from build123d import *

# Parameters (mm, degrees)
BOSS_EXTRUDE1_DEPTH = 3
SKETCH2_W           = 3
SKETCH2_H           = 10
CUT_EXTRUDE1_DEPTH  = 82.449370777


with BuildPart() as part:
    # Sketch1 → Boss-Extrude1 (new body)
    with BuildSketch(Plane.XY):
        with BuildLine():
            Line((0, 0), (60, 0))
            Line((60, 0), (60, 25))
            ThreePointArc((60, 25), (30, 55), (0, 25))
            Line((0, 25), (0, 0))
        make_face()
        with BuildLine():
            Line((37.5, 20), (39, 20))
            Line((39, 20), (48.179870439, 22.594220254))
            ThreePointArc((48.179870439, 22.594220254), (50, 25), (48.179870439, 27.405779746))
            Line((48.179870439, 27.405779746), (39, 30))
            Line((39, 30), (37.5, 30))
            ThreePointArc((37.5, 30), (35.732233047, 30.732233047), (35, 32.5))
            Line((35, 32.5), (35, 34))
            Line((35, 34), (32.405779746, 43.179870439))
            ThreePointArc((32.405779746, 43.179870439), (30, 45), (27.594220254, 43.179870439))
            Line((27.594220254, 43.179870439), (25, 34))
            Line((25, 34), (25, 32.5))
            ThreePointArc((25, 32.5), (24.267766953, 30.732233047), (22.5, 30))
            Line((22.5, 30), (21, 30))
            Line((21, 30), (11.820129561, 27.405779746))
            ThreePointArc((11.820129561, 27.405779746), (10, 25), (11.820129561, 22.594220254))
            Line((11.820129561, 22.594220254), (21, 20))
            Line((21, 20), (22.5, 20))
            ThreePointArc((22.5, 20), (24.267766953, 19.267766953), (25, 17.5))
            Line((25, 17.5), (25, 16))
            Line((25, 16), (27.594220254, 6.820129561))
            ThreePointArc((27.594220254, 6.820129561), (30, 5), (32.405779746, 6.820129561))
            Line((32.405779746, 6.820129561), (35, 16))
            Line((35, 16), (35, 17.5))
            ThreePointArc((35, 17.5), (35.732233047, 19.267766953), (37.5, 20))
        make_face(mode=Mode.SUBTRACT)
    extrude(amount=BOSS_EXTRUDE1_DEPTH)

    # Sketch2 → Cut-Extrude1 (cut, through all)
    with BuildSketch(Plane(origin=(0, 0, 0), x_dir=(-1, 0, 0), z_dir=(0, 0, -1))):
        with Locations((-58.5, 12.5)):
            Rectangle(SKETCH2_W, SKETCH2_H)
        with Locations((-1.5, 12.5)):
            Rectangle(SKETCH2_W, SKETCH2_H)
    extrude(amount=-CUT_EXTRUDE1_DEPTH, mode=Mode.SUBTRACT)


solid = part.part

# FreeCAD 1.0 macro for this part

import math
import FreeCAD as App
import Part
import Sketcher
from FreeCAD import Vector

doc = App.newDocument("Part")
params = doc.addObject("Spreadsheet::Sheet", "Params")
for row, (alias, value) in enumerate([
    ("sketch1_radius", "30 mm"),
    ("sketch1_radius2", "2.5 mm"),
    ("sketch1_height", "25 mm"),
    ("sketch1_width", "1.5 mm"),
    ("pad1_length", "3 mm"),
    ("sketch2_width", "3 mm"),
    ("sketch2_height", "10 mm"),
], start=1):
    params.set(f"A{row}", alias)
    params.set(f"B{row}", "=" + value)
    params.setAlias(f"B{row}", alias)

body = doc.addObject("PartDesign::Body", "Body")

sketch1 = doc.addObject("Sketcher::SketchObject", "Sketch")
body.addObject(sketch1)
sketch1.AttachmentSupport = (doc.XY_Plane, [""])
sketch1.MapMode = "FlatFace"
sketch1.addGeometry(Part.LineSegment(Vector(0, 0, 0), Vector(60, 0, 0)), False)
sketch1.addGeometry(Part.LineSegment(Vector(60, 0, 0), Vector(60, 25, 0)), False)
sketch1.addGeometry(Part.ArcOfCircle(Part.Circle(Vector(30, 25, 0), Vector(0, 0, 1), 30), math.radians(0), math.radians(180)), False)
sketch1.addGeometry(Part.LineSegment(Vector(0, 25, 0), Vector(0, 0, 0)), False)
sketch1.addGeometry(Part.LineSegment(Vector(39, 20, 0), Vector(37.5, 20, 0)), False)
sketch1.addGeometry(Part.ArcOfCircle(Part.Circle(Vector(37.5, 17.5, 0), Vector(0, 0, 1), 2.5), math.radians(90), math.radians(180)), False)
sketch1.addGeometry(Part.LineSegment(Vector(35, 17.5, 0), Vector(35, 16, 0)), False)
sketch1.addGeometry(Part.LineSegment(Vector(35, 16, 0), Vector(32.4, 6.8, 0)), False)
sketch1.addGeometry(Part.ArcOfCircle(Part.Circle(Vector(30, 7.5, 0), Vector(0, 0, 1), 2.5), math.radians(-164), math.radians(-16)), False)
sketch1.addGeometry(Part.LineSegment(Vector(27.6, 6.8, 0), Vector(25, 16, 0)), False)
sketch1.addGeometry(Part.LineSegment(Vector(25, 16, 0), Vector(25, 17.5, 0)), False)
sketch1.addGeometry(Part.ArcOfCircle(Part.Circle(Vector(22.5, 17.5, 0), Vector(0, 0, 1), 2.5), math.radians(0), math.radians(90)), False)
sketch1.addGeometry(Part.LineSegment(Vector(22.5, 20, 0), Vector(21, 20, 0)), False)
sketch1.addGeometry(Part.LineSegment(Vector(21, 20, 0), Vector(11.8, 22.6, 0)), False)
sketch1.addGeometry(Part.ArcOfCircle(Part.Circle(Vector(12.5, 25, 0), Vector(0, 0, 1), 2.5), math.radians(106), math.radians(254)), False)
sketch1.addGeometry(Part.LineSegment(Vector(11.8, 27.4, 0), Vector(21, 30, 0)), False)
sketch1.addGeometry(Part.LineSegment(Vector(21, 30, 0), Vector(22.5, 30, 0)), False)
sketch1.addGeometry(Part.ArcOfCircle(Part.Circle(Vector(22.5, 32.5, 0), Vector(0, 0, 1), 2.5), math.radians(-90), math.radians(0)), False)
sketch1.addGeometry(Part.LineSegment(Vector(25, 32.5, 0), Vector(25, 34, 0)), False)
sketch1.addGeometry(Part.LineSegment(Vector(25, 34, 0), Vector(27.6, 43.2, 0)), False)
sketch1.addGeometry(Part.ArcOfCircle(Part.Circle(Vector(30, 42.5, 0), Vector(0, 0, 1), 2.5), math.radians(16), math.radians(164)), False)
sketch1.addGeometry(Part.LineSegment(Vector(32.4, 43.2, 0), Vector(35, 34, 0)), False)
sketch1.addGeometry(Part.LineSegment(Vector(35, 34, 0), Vector(35, 32.5, 0)), False)
sketch1.addGeometry(Part.ArcOfCircle(Part.Circle(Vector(37.5, 32.5, 0), Vector(0, 0, 1), 2.5), math.radians(180), math.radians(270)), False)
sketch1.addGeometry(Part.LineSegment(Vector(37.5, 30, 0), Vector(39, 30, 0)), False)
sketch1.addGeometry(Part.LineSegment(Vector(39, 30, 0), Vector(48.2, 27.4, 0)), False)
sketch1.addGeometry(Part.ArcOfCircle(Part.Circle(Vector(47.5, 25, 0), Vector(0, 0, 1), 2.5), math.radians(-74), math.radians(74)), False)
sketch1.addGeometry(Part.LineSegment(Vector(48.2, 22.6, 0), Vector(39, 20, 0)), False)
sketch1.addConstraint(Sketcher.Constraint("Coincident", 0, 2, 1, 1))
sketch1.addConstraint(Sketcher.Constraint("Tangent", 1, 2, 2, 1))
sketch1.addConstraint(Sketcher.Constraint("Tangent", 2, 2, 3, 1))
sketch1.addConstraint(Sketcher.Constraint("Coincident", 3, 2, 0, 1))
sketch1.addConstraint(Sketcher.Constraint("Tangent", 4, 2, 5, 1))
sketch1.addConstraint(Sketcher.Constraint("Tangent", 5, 2, 6, 1))
sketch1.addConstraint(Sketcher.Constraint("Coincident", 6, 2, 7, 1))
sketch1.addConstraint(Sketcher.Constraint("Tangent", 7, 2, 8, 2))
sketch1.addConstraint(Sketcher.Constraint("Tangent", 8, 1, 9, 1))
sketch1.addConstraint(Sketcher.Constraint("Coincident", 9, 2, 10, 1))
sketch1.addConstraint(Sketcher.Constraint("Tangent", 10, 2, 11, 1))
sketch1.addConstraint(Sketcher.Constraint("Tangent", 11, 2, 12, 1))
sketch1.addConstraint(Sketcher.Constraint("Coincident", 12, 2, 13, 1))
sketch1.addConstraint(Sketcher.Constraint("Tangent", 13, 2, 14, 2))
sketch1.addConstraint(Sketcher.Constraint("Tangent", 14, 1, 15, 1))
sketch1.addConstraint(Sketcher.Constraint("Coincident", 15, 2, 16, 1))
sketch1.addConstraint(Sketcher.Constraint("Tangent", 16, 2, 17, 1))
sketch1.addConstraint(Sketcher.Constraint("Tangent", 17, 2, 18, 1))
sketch1.addConstraint(Sketcher.Constraint("Coincident", 18, 2, 19, 1))
sketch1.addConstraint(Sketcher.Constraint("Tangent", 19, 2, 20, 2))
sketch1.addConstraint(Sketcher.Constraint("Tangent", 20, 1, 21, 1))
sketch1.addConstraint(Sketcher.Constraint("Coincident", 21, 2, 22, 1))
sketch1.addConstraint(Sketcher.Constraint("Tangent", 22, 2, 23, 1))
sketch1.addConstraint(Sketcher.Constraint("Tangent", 23, 2, 24, 1))
sketch1.addConstraint(Sketcher.Constraint("Coincident", 24, 2, 25, 1))
sketch1.addConstraint(Sketcher.Constraint("Tangent", 25, 2, 26, 2))
sketch1.addConstraint(Sketcher.Constraint("Tangent", 26, 1, 27, 1))
sketch1.addConstraint(Sketcher.Constraint("Coincident", 27, 2, 4, 1))
sketch1.addConstraint(Sketcher.Constraint("Horizontal", 0))
sketch1.addConstraint(Sketcher.Constraint("Vertical", 1))
sketch1.addConstraint(Sketcher.Constraint("Vertical", 3))
sketch1.addConstraint(Sketcher.Constraint("Horizontal", 4))
sketch1.addConstraint(Sketcher.Constraint("Vertical", 6))
sketch1.addConstraint(Sketcher.Constraint("Vertical", 10))
sketch1.addConstraint(Sketcher.Constraint("Horizontal", 12))
sketch1.addConstraint(Sketcher.Constraint("Horizontal", 16))
sketch1.addConstraint(Sketcher.Constraint("Vertical", 18))
sketch1.addConstraint(Sketcher.Constraint("Vertical", 22))
sketch1.addConstraint(Sketcher.Constraint("Horizontal", 24))
sketch1.addConstraint(Sketcher.Constraint("Coincident", 3, 2, -1, 1))
sketch1.addConstraint(Sketcher.Constraint("Equal", 5, 8))
sketch1.addConstraint(Sketcher.Constraint("Equal", 8, 11))
sketch1.addConstraint(Sketcher.Constraint("Equal", 11, 14))
sketch1.addConstraint(Sketcher.Constraint("Equal", 14, 17))
sketch1.addConstraint(Sketcher.Constraint("Equal", 17, 20))
sketch1.addConstraint(Sketcher.Constraint("Equal", 20, 23))
sketch1.addConstraint(Sketcher.Constraint("Equal", 23, 26))
sketch1.addConstraint(Sketcher.Constraint("Perpendicular", 7, 13))
sketch1.addConstraint(Sketcher.Constraint("Perpendicular", 9, 15))
sketch1.addConstraint(Sketcher.Constraint("Perpendicular", 13, 19))
sketch1.addConstraint(Sketcher.Constraint("Perpendicular", 15, 21))
sketch1.addConstraint(Sketcher.Constraint("Perpendicular", 19, 25))
sketch1.addConstraint(Sketcher.Constraint("Perpendicular", 21, 27))
sketch1.addConstraint(Sketcher.Constraint("Horizontal", 5, 3, 11, 3))
sketch1.addConstraint(Sketcher.Constraint("Horizontal", 2, 3, 14, 3))
sketch1.addConstraint(Sketcher.Constraint("Horizontal", 17, 3, 23, 3))
sketch1.addConstraint(Sketcher.Constraint("Horizontal", 14, 3, 26, 3))
sketch1.addConstraint(Sketcher.Constraint("Horizontal", 7, 2, 8, 1))
sketch1.addConstraint(Sketcher.Constraint("Horizontal", 6, 2, 9, 2))
sketch1.addConstraint(Sketcher.Constraint("Horizontal", 18, 2, 21, 2))
sketch1.addConstraint(Sketcher.Constraint("Vertical", 2, 3, 8, 3))
sketch1.addConstraint(Sketcher.Constraint("Vertical", 11, 3, 17, 3))
sketch1.addConstraint(Sketcher.Constraint("Vertical", 8, 3, 20, 3))
sketch1.addConstraint(Sketcher.Constraint("Vertical", 12, 2, 15, 2))
sketch1.addConstraint(Sketcher.Constraint("Equal", 4, 12))
sketch1.addConstraint(Sketcher.Constraint("Equal", 24, 6))
sketch1.addConstraint(Sketcher.Constraint("Equal", 10, 18))
sketch1.addConstraint(Sketcher.Constraint("Equal", 9, 13))
sketch1.addConstraint(Sketcher.Constraint("Radius", 2, 30.0))
sketch1.addConstraint(Sketcher.Constraint("Radius", 5, 2.5))
sketch1.addConstraint(Sketcher.Constraint("DistanceY", 1, 1, 1, 2, 25.0))
sketch1.addConstraint(Sketcher.Constraint("DistanceX", 4, 2, 4, 1, 1.5))
sketch1.addConstraint(Sketcher.Constraint("DistanceY", -1, 1, 4, 2, 20.0))
sketch1.addConstraint(Sketcher.Constraint("DistanceY", 8, 3, 5, 3, 10.0))
sketch1.setExpression("Constraints[68]", "Params.sketch1_radius")
sketch1.setExpression("Constraints[69]", "Params.sketch1_radius2")
sketch1.setExpression("Constraints[70]", "Params.sketch1_height")
sketch1.setExpression("Constraints[71]", "Params.sketch1_width")
pad1 = doc.addObject("PartDesign::Pad", "Pad")
body.addObject(pad1)
pad1.Profile = sketch1
pad1.setExpression("Length", "Params.pad1_length")

sketch2 = doc.addObject("Sketcher::SketchObject", "Sketch001")
body.addObject(sketch2)
sketch2.AttachmentSupport = (doc.XY_Plane, [""])
sketch2.MapMode = "FlatFace"
sketch2.addGeometry(Part.LineSegment(Vector(60, 17.5, 0), Vector(60, 7.5, 0)), False)
sketch2.addGeometry(Part.LineSegment(Vector(60, 7.5, 0), Vector(57, 7.5, 0)), False)
sketch2.addGeometry(Part.LineSegment(Vector(57, 7.5, 0), Vector(57, 17.5, 0)), False)
sketch2.addGeometry(Part.LineSegment(Vector(57, 17.5, 0), Vector(60, 17.5, 0)), False)
sketch2.addGeometry(Part.LineSegment(Vector(3, 17.5, 0), Vector(3, 7.5, 0)), False)
sketch2.addGeometry(Part.LineSegment(Vector(3, 7.5, 0), Vector(0, 7.5, 0)), False)
sketch2.addGeometry(Part.LineSegment(Vector(0, 7.5, 0), Vector(0, 17.5, 0)), False)
sketch2.addGeometry(Part.LineSegment(Vector(0, 17.5, 0), Vector(3, 17.5, 0)), False)
sketch2.addConstraint(Sketcher.Constraint("Coincident", 0, 2, 1, 1))
sketch2.addConstraint(Sketcher.Constraint("Coincident", 1, 2, 2, 1))
sketch2.addConstraint(Sketcher.Constraint("Coincident", 2, 2, 3, 1))
sketch2.addConstraint(Sketcher.Constraint("Coincident", 3, 2, 0, 1))
sketch2.addConstraint(Sketcher.Constraint("Coincident", 4, 2, 5, 1))
sketch2.addConstraint(Sketcher.Constraint("Coincident", 5, 2, 6, 1))
sketch2.addConstraint(Sketcher.Constraint("Coincident", 6, 2, 7, 1))
sketch2.addConstraint(Sketcher.Constraint("Coincident", 7, 2, 4, 1))
sketch2.addConstraint(Sketcher.Constraint("Vertical", 0))
sketch2.addConstraint(Sketcher.Constraint("Horizontal", 1))
sketch2.addConstraint(Sketcher.Constraint("Vertical", 2))
sketch2.addConstraint(Sketcher.Constraint("Horizontal", 3))
sketch2.addConstraint(Sketcher.Constraint("Vertical", 4))
sketch2.addConstraint(Sketcher.Constraint("Horizontal", 5))
sketch2.addConstraint(Sketcher.Constraint("Vertical", 6))
sketch2.addConstraint(Sketcher.Constraint("Horizontal", 7))
sketch2.addConstraint(Sketcher.Constraint("PointOnObject", 5, 2, -2))
sketch2.addConstraint(Sketcher.Constraint("Horizontal", 1, 2, 4, 2))
sketch2.addConstraint(Sketcher.Constraint("Horizontal", 3, 2, 6, 2))
sketch2.addConstraint(Sketcher.Constraint("Equal", 3, 5))
sketch2.addConstraint(Sketcher.Constraint("DistanceX", 1, 2, 1, 1, 3.0))
sketch2.addConstraint(Sketcher.Constraint("DistanceY", 0, 2, 0, 1, 10.0))
sketch2.addConstraint(Sketcher.Constraint("DistanceX", -1, 1, 0, 2, 60.0))
sketch2.addConstraint(Sketcher.Constraint("DistanceY", -1, 1, 0, 2, 7.5))
sketch2.setExpression("Constraints[20]", "Params.sketch2_width")
sketch2.setExpression("Constraints[21]", "Params.sketch2_height")
pocket1 = doc.addObject("PartDesign::Pocket", "Pocket")
body.addObject(pocket1)
pocket1.Profile = sketch2
pocket1.Type = "ThroughAll"
pocket1.Reversed = True

doc.recompute()
